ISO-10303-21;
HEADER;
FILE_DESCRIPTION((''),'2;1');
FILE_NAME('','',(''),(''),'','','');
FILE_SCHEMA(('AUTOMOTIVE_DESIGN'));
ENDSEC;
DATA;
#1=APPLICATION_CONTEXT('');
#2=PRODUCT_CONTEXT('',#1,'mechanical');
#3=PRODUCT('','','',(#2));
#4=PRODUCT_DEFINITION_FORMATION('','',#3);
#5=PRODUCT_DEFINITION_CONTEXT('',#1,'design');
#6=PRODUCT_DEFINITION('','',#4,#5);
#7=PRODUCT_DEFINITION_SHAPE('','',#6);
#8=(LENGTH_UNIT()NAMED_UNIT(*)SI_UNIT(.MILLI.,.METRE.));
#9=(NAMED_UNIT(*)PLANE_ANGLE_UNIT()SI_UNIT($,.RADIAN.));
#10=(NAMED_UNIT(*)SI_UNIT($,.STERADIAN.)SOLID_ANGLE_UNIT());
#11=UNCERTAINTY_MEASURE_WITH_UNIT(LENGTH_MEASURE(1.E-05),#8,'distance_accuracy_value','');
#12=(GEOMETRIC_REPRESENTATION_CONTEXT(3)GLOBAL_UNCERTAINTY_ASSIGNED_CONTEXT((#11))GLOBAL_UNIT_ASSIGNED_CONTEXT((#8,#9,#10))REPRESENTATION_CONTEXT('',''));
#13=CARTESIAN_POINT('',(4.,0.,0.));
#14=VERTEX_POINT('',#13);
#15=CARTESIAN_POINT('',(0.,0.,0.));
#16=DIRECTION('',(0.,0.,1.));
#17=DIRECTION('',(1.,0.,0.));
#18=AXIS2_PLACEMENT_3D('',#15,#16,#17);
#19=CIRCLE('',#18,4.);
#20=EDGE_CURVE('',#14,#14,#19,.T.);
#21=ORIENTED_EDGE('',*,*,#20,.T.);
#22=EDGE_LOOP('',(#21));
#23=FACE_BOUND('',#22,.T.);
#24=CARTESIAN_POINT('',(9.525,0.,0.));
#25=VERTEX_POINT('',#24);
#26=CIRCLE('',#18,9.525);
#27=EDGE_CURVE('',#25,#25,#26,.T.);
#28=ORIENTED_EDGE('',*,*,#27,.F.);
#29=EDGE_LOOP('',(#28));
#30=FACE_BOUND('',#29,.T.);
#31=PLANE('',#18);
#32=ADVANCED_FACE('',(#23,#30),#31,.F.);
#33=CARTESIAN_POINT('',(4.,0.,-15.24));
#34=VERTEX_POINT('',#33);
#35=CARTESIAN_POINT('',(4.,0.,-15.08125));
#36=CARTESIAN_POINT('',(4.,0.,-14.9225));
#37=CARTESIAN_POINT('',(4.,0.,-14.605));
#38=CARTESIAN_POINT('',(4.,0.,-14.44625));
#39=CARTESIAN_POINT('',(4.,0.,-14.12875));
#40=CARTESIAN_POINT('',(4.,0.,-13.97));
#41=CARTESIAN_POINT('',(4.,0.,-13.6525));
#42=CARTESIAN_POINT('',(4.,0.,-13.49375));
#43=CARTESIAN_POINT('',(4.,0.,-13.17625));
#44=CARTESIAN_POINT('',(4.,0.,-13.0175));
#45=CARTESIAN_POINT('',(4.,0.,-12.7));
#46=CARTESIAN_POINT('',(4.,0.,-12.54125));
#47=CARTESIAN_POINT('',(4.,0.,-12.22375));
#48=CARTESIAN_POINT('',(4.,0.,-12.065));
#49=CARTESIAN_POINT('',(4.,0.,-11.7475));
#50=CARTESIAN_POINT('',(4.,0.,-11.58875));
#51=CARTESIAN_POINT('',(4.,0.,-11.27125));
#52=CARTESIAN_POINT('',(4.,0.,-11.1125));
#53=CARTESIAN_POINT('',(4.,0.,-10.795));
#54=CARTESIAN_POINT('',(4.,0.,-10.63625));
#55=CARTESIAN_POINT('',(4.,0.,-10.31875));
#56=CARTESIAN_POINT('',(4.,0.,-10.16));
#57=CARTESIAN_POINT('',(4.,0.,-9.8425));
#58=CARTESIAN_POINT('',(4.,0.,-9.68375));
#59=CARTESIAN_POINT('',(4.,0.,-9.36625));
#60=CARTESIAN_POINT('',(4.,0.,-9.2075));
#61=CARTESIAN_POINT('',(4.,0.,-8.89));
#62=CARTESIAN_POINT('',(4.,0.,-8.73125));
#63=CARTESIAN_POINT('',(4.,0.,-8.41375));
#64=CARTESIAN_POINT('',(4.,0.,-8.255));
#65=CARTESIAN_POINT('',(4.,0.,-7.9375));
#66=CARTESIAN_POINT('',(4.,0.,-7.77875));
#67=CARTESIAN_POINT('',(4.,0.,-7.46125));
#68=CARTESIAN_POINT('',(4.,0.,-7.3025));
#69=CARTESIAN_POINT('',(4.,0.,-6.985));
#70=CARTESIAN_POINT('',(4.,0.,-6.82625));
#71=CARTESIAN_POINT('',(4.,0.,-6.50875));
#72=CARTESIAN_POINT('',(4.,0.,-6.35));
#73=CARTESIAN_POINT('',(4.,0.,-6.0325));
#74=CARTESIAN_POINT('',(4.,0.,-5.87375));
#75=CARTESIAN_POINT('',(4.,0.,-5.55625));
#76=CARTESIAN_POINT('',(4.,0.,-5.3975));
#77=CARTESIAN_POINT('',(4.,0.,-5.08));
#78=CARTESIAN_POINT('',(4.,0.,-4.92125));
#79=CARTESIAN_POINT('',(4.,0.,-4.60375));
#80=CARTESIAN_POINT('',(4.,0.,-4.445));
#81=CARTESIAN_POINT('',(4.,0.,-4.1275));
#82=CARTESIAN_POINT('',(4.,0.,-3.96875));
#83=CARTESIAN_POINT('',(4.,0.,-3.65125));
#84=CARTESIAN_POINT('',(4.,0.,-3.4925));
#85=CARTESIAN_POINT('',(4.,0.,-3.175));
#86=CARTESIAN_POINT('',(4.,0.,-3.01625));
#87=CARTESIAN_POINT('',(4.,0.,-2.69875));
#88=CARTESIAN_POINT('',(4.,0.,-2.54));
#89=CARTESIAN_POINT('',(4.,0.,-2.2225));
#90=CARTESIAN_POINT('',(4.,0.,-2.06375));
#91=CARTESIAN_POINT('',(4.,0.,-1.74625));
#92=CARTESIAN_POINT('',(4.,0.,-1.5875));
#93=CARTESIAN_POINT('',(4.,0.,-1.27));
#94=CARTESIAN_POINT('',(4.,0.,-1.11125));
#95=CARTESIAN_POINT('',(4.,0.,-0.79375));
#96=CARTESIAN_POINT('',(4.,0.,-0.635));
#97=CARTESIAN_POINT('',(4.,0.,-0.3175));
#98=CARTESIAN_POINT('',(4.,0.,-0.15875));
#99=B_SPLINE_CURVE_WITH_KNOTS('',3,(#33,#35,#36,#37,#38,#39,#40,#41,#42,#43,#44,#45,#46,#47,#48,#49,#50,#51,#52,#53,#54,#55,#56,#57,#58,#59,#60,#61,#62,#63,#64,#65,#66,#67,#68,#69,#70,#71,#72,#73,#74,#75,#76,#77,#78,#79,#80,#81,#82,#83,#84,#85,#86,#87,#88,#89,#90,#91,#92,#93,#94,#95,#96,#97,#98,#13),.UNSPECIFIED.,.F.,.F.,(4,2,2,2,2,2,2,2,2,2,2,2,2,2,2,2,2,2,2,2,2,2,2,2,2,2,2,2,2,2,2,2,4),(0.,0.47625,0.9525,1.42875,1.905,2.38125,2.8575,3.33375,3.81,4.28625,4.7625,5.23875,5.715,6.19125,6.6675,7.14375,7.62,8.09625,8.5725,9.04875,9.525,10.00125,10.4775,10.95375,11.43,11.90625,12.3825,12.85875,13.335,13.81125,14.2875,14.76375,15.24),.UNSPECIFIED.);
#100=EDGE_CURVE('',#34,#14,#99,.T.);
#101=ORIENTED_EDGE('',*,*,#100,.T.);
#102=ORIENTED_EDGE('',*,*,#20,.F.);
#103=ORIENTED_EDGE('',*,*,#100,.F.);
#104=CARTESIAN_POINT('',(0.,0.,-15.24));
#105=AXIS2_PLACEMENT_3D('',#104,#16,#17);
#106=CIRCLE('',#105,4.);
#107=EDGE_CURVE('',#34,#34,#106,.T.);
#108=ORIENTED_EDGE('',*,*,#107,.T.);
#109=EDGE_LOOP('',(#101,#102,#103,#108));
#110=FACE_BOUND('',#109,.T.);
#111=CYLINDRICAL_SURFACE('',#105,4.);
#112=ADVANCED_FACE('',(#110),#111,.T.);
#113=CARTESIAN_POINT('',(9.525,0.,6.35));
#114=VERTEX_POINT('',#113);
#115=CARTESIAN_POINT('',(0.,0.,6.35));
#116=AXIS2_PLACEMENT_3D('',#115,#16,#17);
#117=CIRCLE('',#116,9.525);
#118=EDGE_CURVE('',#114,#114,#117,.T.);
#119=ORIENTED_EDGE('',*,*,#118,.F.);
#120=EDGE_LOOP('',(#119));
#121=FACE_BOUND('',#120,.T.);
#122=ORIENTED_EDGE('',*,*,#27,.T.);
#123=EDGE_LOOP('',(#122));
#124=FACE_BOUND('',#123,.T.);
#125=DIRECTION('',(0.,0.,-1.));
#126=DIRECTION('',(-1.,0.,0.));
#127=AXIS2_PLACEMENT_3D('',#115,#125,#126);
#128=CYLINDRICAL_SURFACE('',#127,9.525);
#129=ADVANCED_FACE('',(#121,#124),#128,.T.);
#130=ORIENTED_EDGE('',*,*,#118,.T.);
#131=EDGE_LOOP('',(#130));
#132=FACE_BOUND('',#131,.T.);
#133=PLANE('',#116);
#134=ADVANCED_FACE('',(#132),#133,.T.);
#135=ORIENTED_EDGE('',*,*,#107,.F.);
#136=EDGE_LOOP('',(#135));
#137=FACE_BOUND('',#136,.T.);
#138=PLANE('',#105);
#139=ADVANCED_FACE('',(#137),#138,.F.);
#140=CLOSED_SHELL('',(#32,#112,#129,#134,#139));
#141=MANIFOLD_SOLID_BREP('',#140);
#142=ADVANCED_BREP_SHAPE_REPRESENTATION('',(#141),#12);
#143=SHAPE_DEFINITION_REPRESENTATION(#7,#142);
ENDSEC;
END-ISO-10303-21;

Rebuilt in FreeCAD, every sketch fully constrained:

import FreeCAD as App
import Part
import Sketcher

V = App.Vector
Q = App.Units.Quantity

doc = App.newDocument("Part")
body = doc.addObject("PartDesign::Body", "Body")

sketch1 = body.newObject("Sketcher::SketchObject", "Sketch")
sketch1.AttachmentSupport = (doc.getObject("XY_Plane"), [""])
sketch1.MapMode = "FlatFace"
sketch1.addGeometry(Part.Circle(V(0, 0, 0), V(0, 0, 1), 9.525), False)
sketch1.addConstraint([
    Sketcher.Constraint("Coincident", 0, 3, -1, 1),
    Sketcher.Constraint("Diameter", 0, Q("0.75 in")),
])
pad1 = body.newObject("PartDesign::Pad", "Pad")
pad1.Profile = sketch1
pad1.Length = Q("0.25 in")

sketch2 = body.newObject("Sketcher::SketchObject", "Sketch001")
sketch2.AttachmentSupport = (doc.getObject("XY_Plane"), [""])
sketch2.MapMode = "FlatFace"
sketch2.addGeometry(Part.Circle(V(0, 0, 0), V(0, 0, 1), 4), False)
sketch2.addConstraint([
    Sketcher.Constraint("Coincident", 0, 3, -1, 1),
    Sketcher.Constraint("Diameter", 0, 8.0),
])
pad2 = body.newObject("PartDesign::Pad", "Pad001")
pad2.Profile = sketch2
pad2.Length = Q("0.6 in")
pad2.Reversed = True

doc.recompute()
